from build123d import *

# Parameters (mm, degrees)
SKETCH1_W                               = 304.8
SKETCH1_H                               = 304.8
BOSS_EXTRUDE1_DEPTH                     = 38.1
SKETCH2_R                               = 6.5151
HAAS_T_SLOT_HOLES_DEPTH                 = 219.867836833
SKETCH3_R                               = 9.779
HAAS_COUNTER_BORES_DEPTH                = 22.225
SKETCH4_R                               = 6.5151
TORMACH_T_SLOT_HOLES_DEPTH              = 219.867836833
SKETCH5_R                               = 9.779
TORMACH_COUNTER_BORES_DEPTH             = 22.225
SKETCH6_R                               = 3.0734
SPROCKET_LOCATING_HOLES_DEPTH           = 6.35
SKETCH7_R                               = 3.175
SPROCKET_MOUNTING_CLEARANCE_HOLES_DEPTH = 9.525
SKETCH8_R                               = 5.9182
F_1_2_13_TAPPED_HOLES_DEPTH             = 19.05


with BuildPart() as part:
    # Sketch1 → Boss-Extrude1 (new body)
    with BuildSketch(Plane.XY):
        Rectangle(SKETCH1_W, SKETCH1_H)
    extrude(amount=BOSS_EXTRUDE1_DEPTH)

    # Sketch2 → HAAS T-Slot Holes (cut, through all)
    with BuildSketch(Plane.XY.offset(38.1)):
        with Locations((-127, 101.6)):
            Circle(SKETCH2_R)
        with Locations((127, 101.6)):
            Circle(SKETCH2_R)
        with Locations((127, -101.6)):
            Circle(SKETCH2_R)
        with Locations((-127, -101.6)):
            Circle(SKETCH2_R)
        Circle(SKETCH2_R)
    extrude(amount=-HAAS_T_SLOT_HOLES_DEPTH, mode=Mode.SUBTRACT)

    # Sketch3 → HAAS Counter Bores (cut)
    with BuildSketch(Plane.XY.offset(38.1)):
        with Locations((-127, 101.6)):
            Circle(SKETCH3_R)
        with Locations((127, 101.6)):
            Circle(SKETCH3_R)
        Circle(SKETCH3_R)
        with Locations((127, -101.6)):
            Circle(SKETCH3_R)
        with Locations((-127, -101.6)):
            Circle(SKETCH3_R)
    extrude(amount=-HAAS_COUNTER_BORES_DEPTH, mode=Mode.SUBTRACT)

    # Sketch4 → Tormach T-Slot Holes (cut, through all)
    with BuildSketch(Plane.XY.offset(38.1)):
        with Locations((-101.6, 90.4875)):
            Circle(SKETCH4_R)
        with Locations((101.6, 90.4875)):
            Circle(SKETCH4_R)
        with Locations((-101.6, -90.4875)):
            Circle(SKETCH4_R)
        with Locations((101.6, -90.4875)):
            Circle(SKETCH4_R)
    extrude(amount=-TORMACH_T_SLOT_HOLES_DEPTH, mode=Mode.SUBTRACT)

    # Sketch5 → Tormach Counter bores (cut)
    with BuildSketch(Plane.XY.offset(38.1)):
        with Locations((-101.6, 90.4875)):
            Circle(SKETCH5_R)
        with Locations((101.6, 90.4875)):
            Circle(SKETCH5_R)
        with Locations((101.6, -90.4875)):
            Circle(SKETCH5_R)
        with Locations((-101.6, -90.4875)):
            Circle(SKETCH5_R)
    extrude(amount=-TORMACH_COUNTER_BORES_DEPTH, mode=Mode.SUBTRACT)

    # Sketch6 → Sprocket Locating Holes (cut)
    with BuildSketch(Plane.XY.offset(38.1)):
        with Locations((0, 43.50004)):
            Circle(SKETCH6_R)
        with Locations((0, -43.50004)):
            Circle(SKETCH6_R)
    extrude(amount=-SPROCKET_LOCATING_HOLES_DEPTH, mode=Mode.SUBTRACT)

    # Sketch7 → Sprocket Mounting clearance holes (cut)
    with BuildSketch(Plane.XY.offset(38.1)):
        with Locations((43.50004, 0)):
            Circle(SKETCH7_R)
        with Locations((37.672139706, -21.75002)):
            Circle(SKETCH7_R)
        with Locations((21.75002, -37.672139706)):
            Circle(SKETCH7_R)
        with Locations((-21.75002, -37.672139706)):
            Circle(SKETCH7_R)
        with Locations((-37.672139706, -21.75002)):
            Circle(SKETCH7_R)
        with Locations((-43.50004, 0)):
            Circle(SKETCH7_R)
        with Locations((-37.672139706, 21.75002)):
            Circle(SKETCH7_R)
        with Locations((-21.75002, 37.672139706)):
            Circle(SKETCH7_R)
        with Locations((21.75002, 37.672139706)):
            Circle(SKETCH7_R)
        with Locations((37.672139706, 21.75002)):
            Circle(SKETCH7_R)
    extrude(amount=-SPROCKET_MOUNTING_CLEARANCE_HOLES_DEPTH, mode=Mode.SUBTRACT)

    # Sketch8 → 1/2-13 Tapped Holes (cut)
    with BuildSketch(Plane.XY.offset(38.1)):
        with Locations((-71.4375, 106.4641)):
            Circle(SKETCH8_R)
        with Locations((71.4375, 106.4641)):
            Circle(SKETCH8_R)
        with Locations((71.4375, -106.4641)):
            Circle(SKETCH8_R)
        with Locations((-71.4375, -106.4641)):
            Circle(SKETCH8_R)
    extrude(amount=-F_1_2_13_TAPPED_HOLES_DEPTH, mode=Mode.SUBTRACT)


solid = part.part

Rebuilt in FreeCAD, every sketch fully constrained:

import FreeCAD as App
import Part
import Sketcher
from FreeCAD import Vector
Q = App.Units.Quantity


def add_polygon(sketch, points):
    """Adds a closed chain of lines whose ends are joined by coincident constraints."""
    first, n = sketch.GeometryCount, len(points)
    for a, b in zip(points, points[1:] + points[:1]):
        sketch.addGeometry(Part.LineSegment(App.Vector(*a, 0), App.Vector(*b, 0)), False)
    for i in range(n):
        sketch.addConstraint(Sketcher.Constraint("Coincident", first + i, 2, first + (i + 1) % n, 1))

doc = App.newDocument("Part")
body = doc.addObject("PartDesign::Body", "Body")

sketch1 = body.newObject("Sketcher::SketchObject", "Sketch")
sketch1.AttachmentSupport = (doc.getObject("XY_Plane"), [""])
sketch1.MapMode = "FlatFace"
add_polygon(sketch1, [(-152, 152), (-152, -152), (152, -152), (152, 152)])
sketch1.addConstraint([
    Sketcher.Constraint("Vertical", 0),
    Sketcher.Constraint("Horizontal", 1),
    Sketcher.Constraint("Vertical", 2),
    Sketcher.Constraint("Horizontal", 3),
    Sketcher.Constraint("Symmetric", 0, 2, 2, 2, -1, 1),
    Sketcher.Constraint("Equal", 3, 0),
    Sketcher.Constraint("DistanceX", 1, 1, 1, 2, Q("12 in")),
])
pad1 = body.newObject("PartDesign::Pad", "Pad")
pad1.Profile = sketch1
pad1.Length = Q("1.5 in")

sketch2 = body.newObject("Sketcher::SketchObject", "Sketch001")
sketch2.AttachmentSupport = (doc.getObject("XY_Plane"), [""])
sketch2.MapMode = "FlatFace"
sketch2.AttachmentOffset = App.Placement(Vector(0, 0, 1.5 * 25.4), App.Rotation())
sketch2.addGeometry([
    Part.Circle(Vector(-127, 102, 0), Vector(0, 0, 1), 7),
    Part.Circle(Vector(127, 102, 0), Vector(0, 0, 1), 7),
    Part.Circle(Vector(127, -102, 0), Vector(0, 0, 1), 7),
    Part.Circle(Vector(-127, -102, 0), Vector(0, 0, 1), 7),
    Part.Circle(Vector(0, 0, 0), Vector(0, 0, 1), 7),
], False)
sketch2.addConstraint([
    Sketcher.Constraint("Coincident", 4, 3, -1, 1),
    Sketcher.Constraint("Equal", 0, 1),
    Sketcher.Constraint("Equal", 1, 2),
    Sketcher.Constraint("Equal", 2, 3),
    Sketcher.Constraint("Equal", 3, 4),
    Sketcher.Constraint("Symmetric", 0, 3, 2, 3, -1, 1),
    Sketcher.Constraint("Symmetric", 1, 3, 3, 3, -1, 1),
    Sketcher.Constraint("Symmetric", 0, 3, 1, 3, -2),
    Sketcher.Constraint("Diameter", 0, Q("0.513 in")),
    Sketcher.Constraint("DistanceX", 0, 3, -1, 1, Q("5 in")),
    Sketcher.Constraint("DistanceY", -1, 1, 0, 3, Q("4 in")),
])
pocket1 = body.newObject("PartDesign::Pocket", "Pocket")
pocket1.Profile = sketch2
pocket1.Type = "ThroughAll"

sketch3 = body.newObject("Sketcher::SketchObject", "Sketch002")
sketch3.AttachmentSupport = (doc.getObject("XY_Plane"), [""])
sketch3.MapMode = "FlatFace"
sketch3.AttachmentOffset = App.Placement(Vector(0, 0, 1.5 * 25.4), App.Rotation())
sketch3.addGeometry([
    Part.Circle(Vector(-127, 102, 0), Vector(0, 0, 1), 10),
    Part.Circle(Vector(127, 102, 0), Vector(0, 0, 1), 10),
    Part.Circle(Vector(0, 0, 0), Vector(0, 0, 1), 10),
    Part.Circle(Vector(127, -102, 0), Vector(0, 0, 1), 10),
    Part.Circle(Vector(-127, -102, 0), Vector(0, 0, 1), 10),
], False)
sketch3.addConstraint([
    Sketcher.Constraint("Coincident", 2, 3, -1, 1),
    Sketcher.Constraint("Equal", 0, 1),
    Sketcher.Constraint("Equal", 1, 2),
    Sketcher.Constraint("Equal", 2, 3),
    Sketcher.Constraint("Equal", 3, 4),
    Sketcher.Constraint("Symmetric", 0, 3, 3, 3, -1, 1),
    Sketcher.Constraint("Symmetric", 1, 3, 4, 3, -1, 1),
    Sketcher.Constraint("Symmetric", 0, 3, 1, 3, -2),
    Sketcher.Constraint("Diameter", 0, Q("0.77 in")),
    Sketcher.Constraint("DistanceX", 0, 3, -1, 1, Q("5 in")),
    Sketcher.Constraint("DistanceY", -1, 1, 0, 3, Q("4 in")),
])
pocket2 = body.newObject("PartDesign::Pocket", "Pocket001")
pocket2.Profile = sketch3
pocket2.Length = Q("0.875 in")

sketch4 = body.newObject("Sketcher::SketchObject", "Sketch003")
sketch4.AttachmentSupport = (doc.getObject("XY_Plane"), [""])
sketch4.MapMode = "FlatFace"
sketch4.AttachmentOffset = App.Placement(Vector(0, 0, 1.5 * 25.4), App.Rotation())
sketch4.addGeometry([
    Part.Circle(Vector(-102, 90, 0), Vector(0, 0, 1), 7),
    Part.Circle(Vector(102, 90, 0), Vector(0, 0, 1), 7),
    Part.Circle(Vector(-102, -90, 0), Vector(0, 0, 1), 7),
    Part.Circle(Vector(102, -90, 0), Vector(0, 0, 1), 7),
], False)
sketch4.addConstraint([
    Sketcher.Constraint("Equal", 0, 1),
    Sketcher.Constraint("Equal", 1, 2),
    Sketcher.Constraint("Equal", 2, 3),
    Sketcher.Constraint("Symmetric", 1, 3, 2, 3, -1, 1),
    Sketcher.Constraint("Symmetric", 0, 3, 3, 3, -1, 1),
    Sketcher.Constraint("Symmetric", 0, 3, 1, 3, -2),
    Sketcher.Constraint("Diameter", 0, Q("0.513 in")),
    Sketcher.Constraint("DistanceX", 0, 3, -1, 1, Q("4 in")),
    Sketcher.Constraint("DistanceY", -1, 1, 0, 3, Q("3.5625 in")),
])
pocket3 = body.newObject("PartDesign::Pocket", "Pocket002")
pocket3.Profile = sketch4
pocket3.Type = "ThroughAll"

sketch5 = body.newObject("Sketcher::SketchObject", "Sketch004")
sketch5.AttachmentSupport = (doc.getObject("XY_Plane"), [""])
sketch5.MapMode = "FlatFace"
sketch5.AttachmentOffset = App.Placement(Vector(0, 0, 1.5 * 25.4), App.Rotation())
sketch5.addGeometry([
    Part.Circle(Vector(-102, 90, 0), Vector(0, 0, 1), 10),
    Part.Circle(Vector(102, 90, 0), Vector(0, 0, 1), 10),
    Part.Circle(Vector(102, -90, 0), Vector(0, 0, 1), 10),
    Part.Circle(Vector(-102, -90, 0), Vector(0, 0, 1), 10),
], False)
sketch5.addConstraint([
    Sketcher.Constraint("Equal", 0, 1),
    Sketcher.Constraint("Equal", 1, 2),
    Sketcher.Constraint("Equal", 2, 3),
    Sketcher.Constraint("Symmetric", 0, 3, 2, 3, -1, 1),
    Sketcher.Constraint("Symmetric", 1, 3, 3, 3, -1, 1),
    Sketcher.Constraint("Symmetric", 0, 3, 1, 3, -2),
    Sketcher.Constraint("Diameter", 0, Q("0.77 in")),
    Sketcher.Constraint("DistanceX", 0, 3, -1, 1, Q("4 in")),
    Sketcher.Constraint("DistanceY", -1, 1, 0, 3, Q("3.5625 in")),
])
pocket4 = body.newObject("PartDesign::Pocket", "Pocket003")
pocket4.Profile = sketch5
pocket4.Length = Q("0.875 in")

sketch6 = body.newObject("Sketcher::SketchObject", "Sketch005")
sketch6.AttachmentSupport = (doc.getObject("XY_Plane"), [""])
sketch6.MapMode = "FlatFace"
sketch6.AttachmentOffset = App.Placement(Vector(0, 0, 1.5 * 25.4), App.Rotation())
sketch6.addGeometry([
    Part.Circle(Vector(0, 43.5, 0), Vector(0, 0, 1), 3.1),
    Part.Circle(Vector(0, -43.5, 0), Vector(0, 0, 1), 3.1),
], False)
sketch6.addConstraint([
    Sketcher.Constraint("Equal", 0, 1),
    Sketcher.Constraint("Symmetric", 0, 3, 1, 3, -1, 1),
    Sketcher.Constraint("PointOnObject", 0, 3, -2),
    Sketcher.Constraint("Diameter", 0, Q("0.242 in")),
    Sketcher.Constraint("DistanceY", -1, 1, 0, 3, Q("1.7126 in")),
])
pocket5 = body.newObject("PartDesign::Pocket", "Pocket004")
pocket5.Profile = sketch6
pocket5.Length = Q("0.25 in")

sketch7 = body.newObject("Sketcher::SketchObject", "Sketch006")
sketch7.AttachmentSupport = (doc.getObject("XY_Plane"), [""])
sketch7.MapMode = "FlatFace"
sketch7.AttachmentOffset = App.Placement(Vector(0, 0, 1.5 * 25.4), App.Rotation())
sketch7.addGeometry([
    Part.Circle(Vector(43.5, 0, 0), Vector(0, 0, 1), 3.2),
    Part.Circle(Vector(37.7, -21.8, 0), Vector(0, 0, 1), 3.2),
    Part.Circle(Vector(21.8, -37.7, 0), Vector(0, 0, 1), 3.2),
    Part.Circle(Vector(-21.8, -37.7, 0), Vector(0, 0, 1), 3.2),
    Part.Circle(Vector(-37.7, -21.8, 0), Vector(0, 0, 1), 3.2),
    Part.Circle(Vector(-43.5, 0, 0), Vector(0, 0, 1), 3.2),
    Part.Circle(Vector(-37.7, 21.8, 0), Vector(0, 0, 1), 3.2),
    Part.Circle(Vector(-21.8, 37.7, 0), Vector(0, 0, 1), 3.2),
    Part.Circle(Vector(21.8, 37.7, 0), Vector(0, 0, 1), 3.2),
    Part.Circle(Vector(37.7, 21.8, 0), Vector(0, 0, 1), 3.2),
], False)
sketch7.addConstraint([
    Sketcher.Constraint("Equal", 0, 1),
    Sketcher.Constraint("Equal", 1, 2),
    Sketcher.Constraint("Equal", 2, 3),
    Sketcher.Constraint("Equal", 3, 4),
    Sketcher.Constraint("Equal", 4, 5),
    Sketcher.Constraint("Equal", 5, 6),
    Sketcher.Constraint("Equal", 6, 7),
    Sketcher.Constraint("Equal", 7, 8),
    Sketcher.Constraint("Equal", 8, 9),
    Sketcher.Constraint("Symmetric", 0, 3, 5, 3, -1, 1),
    Sketcher.Constraint("Symmetric", 1, 3, 6, 3, -1, 1),
    Sketcher.Constraint("Symmetric", 2, 3, 7, 3, -1, 1),
    Sketcher.Constraint("Symmetric", 3, 3, 8, 3, -1, 1),
    Sketcher.Constraint("Symmetric", 4, 3, 9, 3, -1, 1),
    Sketcher.Constraint("Symmetric", 2, 3, 3, 3, -2),
    Sketcher.Constraint("Symmetric", 1, 3, 4, 3, -2),
    Sketcher.Constraint("PointOnObject", 0, 3, -1),
    Sketcher.Constraint("Diameter", 0, Q("0.25 in")),
    Sketcher.Constraint("DistanceX", -1, 1, 0, 3, Q("1.7126 in")),
    Sketcher.Constraint("DistanceY", 1, 3, -1, 1, Q("0.8563 in")),
    Sketcher.Constraint("DistanceX", -1, 1, 2, 3, Q("0.8563 in")),
    Sketcher.Constraint("DistanceX", 1, 3, 0, 3, 5.8279),
    Sketcher.Constraint("DistanceY", 2, 3, -1, 1, 37.67214),
])
pocket6 = body.newObject("PartDesign::Pocket", "Pocket005")
pocket6.Profile = sketch7
pocket6.Length = Q("0.375 in")

sketch8 = body.newObject("Sketcher::SketchObject", "Sketch007")
sketch8.AttachmentSupport = (doc.getObject("XY_Plane"), [""])
sketch8.MapMode = "FlatFace"
sketch8.AttachmentOffset = App.Placement(Vector(0, 0, 1.5 * 25.4), App.Rotation())
sketch8.addGeometry([
    Part.Circle(Vector(-71, 106, 0), Vector(0, 0, 1), 6),
    Part.Circle(Vector(71, 106, 0), Vector(0, 0, 1), 6),
    Part.Circle(Vector(71, -106, 0), Vector(0, 0, 1), 6),
    Part.Circle(Vector(-71, -106, 0), Vector(0, 0, 1), 6),
], False)
sketch8.addConstraint([
    Sketcher.Constraint("Equal", 0, 1),
    Sketcher.Constraint("Equal", 1, 2),
    Sketcher.Constraint("Equal", 2, 3),
    Sketcher.Constraint("Symmetric", 0, 3, 2, 3, -1, 1),
    Sketcher.Constraint("Symmetric", 1, 3, 3, 3, -1, 1),
    Sketcher.Constraint("Symmetric", 0, 3, 1, 3, -2),
    Sketcher.Constraint("Diameter", 0, Q("0.466 in")),
    Sketcher.Constraint("DistanceX", 0, 3, -1, 1, Q("2.8125 in")),
    Sketcher.Constraint("DistanceY", 2, 3, 1, 3, Q("8.383 in")),
])
pocket7 = body.newObject("PartDesign::Pocket", "Pocket006")
pocket7.Profile = sketch8
pocket7.Length = Q("0.75 in")

doc.recompute()
